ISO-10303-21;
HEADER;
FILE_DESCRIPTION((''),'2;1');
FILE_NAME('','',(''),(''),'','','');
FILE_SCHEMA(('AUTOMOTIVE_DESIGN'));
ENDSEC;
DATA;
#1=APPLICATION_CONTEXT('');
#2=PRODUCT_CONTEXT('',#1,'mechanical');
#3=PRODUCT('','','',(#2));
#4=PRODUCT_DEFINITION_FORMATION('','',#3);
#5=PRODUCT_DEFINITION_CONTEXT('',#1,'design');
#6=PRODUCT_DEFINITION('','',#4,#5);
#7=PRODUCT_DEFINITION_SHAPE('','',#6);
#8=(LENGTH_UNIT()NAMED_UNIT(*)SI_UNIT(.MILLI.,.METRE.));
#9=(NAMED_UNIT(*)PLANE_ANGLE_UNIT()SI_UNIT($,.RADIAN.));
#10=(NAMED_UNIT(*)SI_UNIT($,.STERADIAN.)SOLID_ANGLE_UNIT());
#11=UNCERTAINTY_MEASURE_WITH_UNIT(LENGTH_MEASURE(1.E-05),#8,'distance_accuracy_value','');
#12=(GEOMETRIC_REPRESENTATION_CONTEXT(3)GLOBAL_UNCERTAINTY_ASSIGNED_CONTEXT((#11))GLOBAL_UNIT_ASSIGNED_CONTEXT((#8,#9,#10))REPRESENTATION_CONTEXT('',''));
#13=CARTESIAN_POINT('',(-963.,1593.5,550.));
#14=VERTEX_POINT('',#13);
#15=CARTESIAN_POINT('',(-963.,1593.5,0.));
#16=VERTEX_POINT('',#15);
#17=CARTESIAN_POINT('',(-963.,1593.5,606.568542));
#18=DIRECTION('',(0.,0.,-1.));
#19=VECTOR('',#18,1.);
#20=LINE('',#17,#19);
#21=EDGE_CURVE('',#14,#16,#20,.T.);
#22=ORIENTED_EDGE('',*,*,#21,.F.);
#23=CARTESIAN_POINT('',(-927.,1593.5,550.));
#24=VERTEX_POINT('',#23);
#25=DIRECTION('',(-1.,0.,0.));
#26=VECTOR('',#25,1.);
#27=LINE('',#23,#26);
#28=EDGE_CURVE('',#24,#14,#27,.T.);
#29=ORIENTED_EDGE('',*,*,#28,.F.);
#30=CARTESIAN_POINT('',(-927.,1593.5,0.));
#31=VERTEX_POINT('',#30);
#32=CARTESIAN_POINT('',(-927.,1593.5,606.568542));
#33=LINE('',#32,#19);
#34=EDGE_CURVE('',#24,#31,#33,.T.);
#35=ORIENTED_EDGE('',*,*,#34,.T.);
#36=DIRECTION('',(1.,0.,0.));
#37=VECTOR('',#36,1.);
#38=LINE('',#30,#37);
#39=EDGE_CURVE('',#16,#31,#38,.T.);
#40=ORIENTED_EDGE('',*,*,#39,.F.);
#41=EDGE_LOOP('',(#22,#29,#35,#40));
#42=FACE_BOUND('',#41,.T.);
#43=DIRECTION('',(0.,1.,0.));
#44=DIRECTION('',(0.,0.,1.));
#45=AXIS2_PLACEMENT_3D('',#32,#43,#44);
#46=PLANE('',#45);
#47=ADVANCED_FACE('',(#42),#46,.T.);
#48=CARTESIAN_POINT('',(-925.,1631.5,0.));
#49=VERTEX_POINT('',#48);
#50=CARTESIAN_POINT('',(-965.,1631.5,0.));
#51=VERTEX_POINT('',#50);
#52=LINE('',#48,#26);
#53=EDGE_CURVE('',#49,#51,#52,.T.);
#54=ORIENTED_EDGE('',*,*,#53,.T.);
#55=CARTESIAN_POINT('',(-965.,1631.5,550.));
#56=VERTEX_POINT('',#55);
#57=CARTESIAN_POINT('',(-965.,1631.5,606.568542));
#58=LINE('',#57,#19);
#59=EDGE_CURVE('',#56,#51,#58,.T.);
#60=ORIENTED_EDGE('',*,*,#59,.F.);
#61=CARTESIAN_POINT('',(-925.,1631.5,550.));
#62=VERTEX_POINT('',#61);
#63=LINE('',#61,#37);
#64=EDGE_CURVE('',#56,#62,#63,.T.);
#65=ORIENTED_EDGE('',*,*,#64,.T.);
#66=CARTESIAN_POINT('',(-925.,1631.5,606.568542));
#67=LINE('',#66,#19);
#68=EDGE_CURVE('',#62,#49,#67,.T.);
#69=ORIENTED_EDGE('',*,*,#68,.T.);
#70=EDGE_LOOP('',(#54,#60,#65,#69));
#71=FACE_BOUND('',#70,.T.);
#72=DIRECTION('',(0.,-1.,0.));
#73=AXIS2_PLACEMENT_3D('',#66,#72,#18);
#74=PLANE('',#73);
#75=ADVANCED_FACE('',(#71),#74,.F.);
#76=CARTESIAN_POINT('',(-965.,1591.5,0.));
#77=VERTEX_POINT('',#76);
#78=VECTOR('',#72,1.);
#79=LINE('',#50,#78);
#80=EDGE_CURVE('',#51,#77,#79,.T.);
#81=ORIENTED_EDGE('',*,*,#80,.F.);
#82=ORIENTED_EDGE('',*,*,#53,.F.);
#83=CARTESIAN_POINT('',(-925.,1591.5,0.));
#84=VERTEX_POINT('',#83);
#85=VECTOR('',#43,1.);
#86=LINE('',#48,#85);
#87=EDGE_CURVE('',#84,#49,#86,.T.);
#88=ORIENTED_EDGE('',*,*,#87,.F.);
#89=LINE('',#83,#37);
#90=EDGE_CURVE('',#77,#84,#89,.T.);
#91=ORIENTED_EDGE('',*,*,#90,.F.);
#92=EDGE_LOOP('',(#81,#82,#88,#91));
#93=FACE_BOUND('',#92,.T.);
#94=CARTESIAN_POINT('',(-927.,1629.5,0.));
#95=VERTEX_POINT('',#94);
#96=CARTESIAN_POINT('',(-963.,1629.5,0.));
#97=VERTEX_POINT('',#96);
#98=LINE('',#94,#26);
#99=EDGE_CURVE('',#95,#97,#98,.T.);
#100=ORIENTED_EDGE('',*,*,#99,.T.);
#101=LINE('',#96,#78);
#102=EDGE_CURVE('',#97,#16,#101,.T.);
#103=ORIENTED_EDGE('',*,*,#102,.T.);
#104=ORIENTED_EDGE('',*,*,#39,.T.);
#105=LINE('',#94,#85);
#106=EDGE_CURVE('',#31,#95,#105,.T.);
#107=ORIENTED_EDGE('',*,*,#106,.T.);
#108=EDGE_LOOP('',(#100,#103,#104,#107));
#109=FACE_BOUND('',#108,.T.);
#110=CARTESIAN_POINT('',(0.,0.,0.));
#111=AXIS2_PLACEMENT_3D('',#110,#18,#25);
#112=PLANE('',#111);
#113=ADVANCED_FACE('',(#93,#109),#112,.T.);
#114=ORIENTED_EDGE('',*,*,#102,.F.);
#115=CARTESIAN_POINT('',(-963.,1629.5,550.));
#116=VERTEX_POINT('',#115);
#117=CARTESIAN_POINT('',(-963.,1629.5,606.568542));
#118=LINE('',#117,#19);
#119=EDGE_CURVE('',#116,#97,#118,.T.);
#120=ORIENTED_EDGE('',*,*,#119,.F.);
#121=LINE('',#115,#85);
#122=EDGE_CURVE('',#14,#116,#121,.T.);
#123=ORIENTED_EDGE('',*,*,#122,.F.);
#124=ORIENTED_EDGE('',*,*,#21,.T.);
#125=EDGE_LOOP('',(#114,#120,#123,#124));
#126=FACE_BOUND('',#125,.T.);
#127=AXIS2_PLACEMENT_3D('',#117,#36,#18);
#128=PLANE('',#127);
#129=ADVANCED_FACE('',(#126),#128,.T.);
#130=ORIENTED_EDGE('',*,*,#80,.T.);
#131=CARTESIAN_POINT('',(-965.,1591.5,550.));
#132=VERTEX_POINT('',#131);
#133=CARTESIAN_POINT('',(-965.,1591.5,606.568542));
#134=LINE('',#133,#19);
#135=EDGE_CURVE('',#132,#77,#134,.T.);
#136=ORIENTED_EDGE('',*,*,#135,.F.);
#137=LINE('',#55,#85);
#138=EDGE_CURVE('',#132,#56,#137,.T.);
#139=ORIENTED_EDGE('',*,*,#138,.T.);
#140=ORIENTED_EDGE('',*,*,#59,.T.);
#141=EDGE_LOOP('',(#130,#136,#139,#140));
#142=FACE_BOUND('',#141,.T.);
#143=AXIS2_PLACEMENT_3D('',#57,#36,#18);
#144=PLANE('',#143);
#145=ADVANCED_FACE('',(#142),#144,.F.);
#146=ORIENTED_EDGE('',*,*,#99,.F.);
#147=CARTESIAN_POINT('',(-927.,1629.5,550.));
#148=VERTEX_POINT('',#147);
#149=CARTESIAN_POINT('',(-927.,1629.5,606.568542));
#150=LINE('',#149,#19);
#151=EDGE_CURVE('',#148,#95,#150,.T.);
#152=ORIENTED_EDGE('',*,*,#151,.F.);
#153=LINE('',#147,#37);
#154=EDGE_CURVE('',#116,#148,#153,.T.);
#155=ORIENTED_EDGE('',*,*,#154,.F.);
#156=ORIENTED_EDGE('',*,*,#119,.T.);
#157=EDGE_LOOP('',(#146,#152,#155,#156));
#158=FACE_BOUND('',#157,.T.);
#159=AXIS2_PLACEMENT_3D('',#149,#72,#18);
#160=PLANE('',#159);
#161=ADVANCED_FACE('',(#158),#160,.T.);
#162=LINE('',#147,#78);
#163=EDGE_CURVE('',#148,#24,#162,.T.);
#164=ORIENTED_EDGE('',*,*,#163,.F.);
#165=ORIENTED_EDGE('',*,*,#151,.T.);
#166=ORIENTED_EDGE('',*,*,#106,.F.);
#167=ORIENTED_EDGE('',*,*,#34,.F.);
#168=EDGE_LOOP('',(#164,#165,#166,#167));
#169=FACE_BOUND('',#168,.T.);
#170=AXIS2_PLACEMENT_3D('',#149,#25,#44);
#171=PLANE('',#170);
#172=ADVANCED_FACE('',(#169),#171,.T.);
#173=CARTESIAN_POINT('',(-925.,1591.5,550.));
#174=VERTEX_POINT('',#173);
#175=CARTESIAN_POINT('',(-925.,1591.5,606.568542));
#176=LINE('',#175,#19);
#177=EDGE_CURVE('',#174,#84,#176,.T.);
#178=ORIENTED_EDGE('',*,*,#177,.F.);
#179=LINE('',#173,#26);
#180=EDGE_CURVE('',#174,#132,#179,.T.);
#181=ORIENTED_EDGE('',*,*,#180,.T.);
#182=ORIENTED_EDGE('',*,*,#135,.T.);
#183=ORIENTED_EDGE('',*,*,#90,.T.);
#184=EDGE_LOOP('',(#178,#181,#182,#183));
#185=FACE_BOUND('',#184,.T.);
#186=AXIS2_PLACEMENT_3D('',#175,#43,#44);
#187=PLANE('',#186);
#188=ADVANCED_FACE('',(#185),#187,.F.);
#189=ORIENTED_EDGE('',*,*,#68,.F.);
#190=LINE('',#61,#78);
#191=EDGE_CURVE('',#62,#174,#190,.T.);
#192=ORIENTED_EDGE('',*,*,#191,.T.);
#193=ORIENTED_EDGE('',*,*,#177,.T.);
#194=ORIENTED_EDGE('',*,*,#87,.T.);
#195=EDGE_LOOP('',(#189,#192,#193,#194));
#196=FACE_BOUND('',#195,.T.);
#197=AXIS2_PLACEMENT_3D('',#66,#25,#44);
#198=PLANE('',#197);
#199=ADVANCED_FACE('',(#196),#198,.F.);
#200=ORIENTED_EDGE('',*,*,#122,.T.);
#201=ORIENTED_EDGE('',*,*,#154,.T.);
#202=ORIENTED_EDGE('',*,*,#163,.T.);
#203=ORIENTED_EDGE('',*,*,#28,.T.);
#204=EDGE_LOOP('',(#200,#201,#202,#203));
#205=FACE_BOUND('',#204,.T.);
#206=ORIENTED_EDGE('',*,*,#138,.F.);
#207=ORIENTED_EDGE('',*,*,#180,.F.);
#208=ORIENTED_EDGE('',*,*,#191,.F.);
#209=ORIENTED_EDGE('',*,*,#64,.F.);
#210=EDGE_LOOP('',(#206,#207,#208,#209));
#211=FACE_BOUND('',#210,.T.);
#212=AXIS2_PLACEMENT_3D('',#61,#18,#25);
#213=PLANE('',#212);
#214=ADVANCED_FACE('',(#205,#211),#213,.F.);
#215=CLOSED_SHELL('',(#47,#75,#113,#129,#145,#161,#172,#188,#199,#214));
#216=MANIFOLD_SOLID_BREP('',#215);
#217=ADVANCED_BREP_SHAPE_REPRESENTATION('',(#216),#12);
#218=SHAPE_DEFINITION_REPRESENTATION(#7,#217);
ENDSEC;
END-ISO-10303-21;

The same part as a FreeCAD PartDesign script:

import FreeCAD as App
import Part
import Sketcher


def add_polygon(sketch, points):
    """Adds a closed chain of lines whose ends are joined by coincident constraints."""
    first, n = sketch.GeometryCount, len(points)
    for a, b in zip(points, points[1:] + points[:1]):
        sketch.addGeometry(Part.LineSegment(App.Vector(*a, 0), App.Vector(*b, 0)), False)
    for i in range(n):
        sketch.addConstraint(Sketcher.Constraint("Coincident", first + i, 2, first + (i + 1) % n, 1))

doc = App.newDocument("Part")
body = doc.addObject("PartDesign::Body", "Body")

# Sketch on XY plane
sketch1 = body.newObject("Sketcher::SketchObject", "Sketch")
sketch1.AttachmentSupport = (doc.getObject("XY_Plane"), [""])
sketch1.MapMode = "FlatFace"
add_polygon(sketch1, [(-965, 1631.5), (-965, 1591.5), (-925, 1591.5), (-925, 1631.5)])  # lines 0-3
add_polygon(sketch1, [(-927, 1593.5), (-963, 1593.5), (-963, 1629.5), (-927, 1629.5)])  # lines 4-7
sketch1.addConstraint(Sketcher.Constraint("Vertical", 0))
sketch1.addConstraint(Sketcher.Constraint("Horizontal", 1))
sketch1.addConstraint(Sketcher.Constraint("Vertical", 2))
sketch1.addConstraint(Sketcher.Constraint("Horizontal", 3))
sketch1.addConstraint(Sketcher.Constraint("Horizontal", 4))
sketch1.addConstraint(Sketcher.Constraint("Vertical", 5))
sketch1.addConstraint(Sketcher.Constraint("Horizontal", 6))
sketch1.addConstraint(Sketcher.Constraint("Vertical", 7))
sketch1.addConstraint(Sketcher.Constraint("Equal", 3, 0))
sketch1.addConstraint(Sketcher.Constraint("Equal", 6, 5))
sketch1.addConstraint(Sketcher.Constraint("DistanceX", 1, 1, 1, 2, 40.0))
sketch1.addConstraint(Sketcher.Constraint("DistanceX", 4, 2, 4, 1, 36.0))
sketch1.addConstraint(Sketcher.Constraint("DistanceX", 0, 2, -1, 1, 965.0))
sketch1.addConstraint(Sketcher.Constraint("DistanceX", 4, 2, -1, 1, 963.0))
sketch1.addConstraint(Sketcher.Constraint("DistanceY", 0, 2, 4, 2, 2.0))
sketch1.addConstraint(Sketcher.Constraint("DistanceY", -1, 1, 0, 2, 1591.5))
pad1 = body.newObject("PartDesign::Pad", "Pad")
pad1.Profile = sketch1
pad1.Length = 550

doc.recompute()
